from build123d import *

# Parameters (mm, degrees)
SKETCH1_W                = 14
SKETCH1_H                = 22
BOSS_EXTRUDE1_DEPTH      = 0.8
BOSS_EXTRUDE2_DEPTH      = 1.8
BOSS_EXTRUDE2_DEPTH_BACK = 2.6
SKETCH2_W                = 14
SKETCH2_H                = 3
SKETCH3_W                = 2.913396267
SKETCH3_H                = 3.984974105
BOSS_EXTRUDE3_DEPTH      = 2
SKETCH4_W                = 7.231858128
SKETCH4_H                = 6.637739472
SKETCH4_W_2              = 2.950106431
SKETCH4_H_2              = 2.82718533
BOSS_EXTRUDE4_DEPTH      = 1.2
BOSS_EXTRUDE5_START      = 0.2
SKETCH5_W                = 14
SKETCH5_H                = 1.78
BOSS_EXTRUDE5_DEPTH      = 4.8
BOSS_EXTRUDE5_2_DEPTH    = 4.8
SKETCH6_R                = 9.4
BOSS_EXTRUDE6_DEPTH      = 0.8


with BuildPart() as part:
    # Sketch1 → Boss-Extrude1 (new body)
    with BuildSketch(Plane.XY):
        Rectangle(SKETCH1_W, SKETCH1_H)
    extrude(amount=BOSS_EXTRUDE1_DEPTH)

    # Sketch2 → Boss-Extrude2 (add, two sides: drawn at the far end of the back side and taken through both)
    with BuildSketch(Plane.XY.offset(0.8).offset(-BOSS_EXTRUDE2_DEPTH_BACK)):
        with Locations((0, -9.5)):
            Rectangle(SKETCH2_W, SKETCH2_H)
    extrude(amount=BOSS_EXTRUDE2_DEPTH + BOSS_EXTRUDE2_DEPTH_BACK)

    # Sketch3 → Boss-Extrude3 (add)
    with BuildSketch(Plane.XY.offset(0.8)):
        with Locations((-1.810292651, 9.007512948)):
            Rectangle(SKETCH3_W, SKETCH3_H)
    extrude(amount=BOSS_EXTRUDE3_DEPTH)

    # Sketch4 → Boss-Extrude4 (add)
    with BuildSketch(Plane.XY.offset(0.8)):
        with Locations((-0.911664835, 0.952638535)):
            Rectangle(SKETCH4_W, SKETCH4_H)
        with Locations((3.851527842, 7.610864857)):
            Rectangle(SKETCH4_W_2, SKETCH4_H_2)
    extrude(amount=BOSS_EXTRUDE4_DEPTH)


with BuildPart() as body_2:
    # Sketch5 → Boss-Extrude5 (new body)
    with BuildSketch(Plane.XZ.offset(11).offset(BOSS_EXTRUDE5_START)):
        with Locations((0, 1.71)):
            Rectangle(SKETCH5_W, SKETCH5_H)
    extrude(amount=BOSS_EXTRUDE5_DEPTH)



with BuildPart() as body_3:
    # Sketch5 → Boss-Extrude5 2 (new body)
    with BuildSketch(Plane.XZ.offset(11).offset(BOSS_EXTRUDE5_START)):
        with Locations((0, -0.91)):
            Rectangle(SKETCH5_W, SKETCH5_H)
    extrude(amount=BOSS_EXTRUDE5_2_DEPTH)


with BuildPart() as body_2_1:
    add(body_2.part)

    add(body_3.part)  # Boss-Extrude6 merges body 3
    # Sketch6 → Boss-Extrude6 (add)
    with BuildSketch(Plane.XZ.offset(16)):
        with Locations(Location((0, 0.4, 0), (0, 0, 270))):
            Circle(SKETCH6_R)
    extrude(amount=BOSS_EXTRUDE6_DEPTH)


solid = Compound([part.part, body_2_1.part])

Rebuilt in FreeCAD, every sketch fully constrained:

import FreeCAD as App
import Part
import Sketcher

V = App.Vector

doc = App.newDocument("Part")
body = doc.addObject("PartDesign::Body", "Body")

sketch1 = body.newObject("Sketcher::SketchObject", "Sketch")
sketch1.AttachmentSupport = (doc.getObject("XY_Plane"), [""])
sketch1.MapMode = "FlatFace"
sketch1.addGeometry([
    Part.LineSegment(V(-7, 11, 0), V(-7, -11, 0)),
    Part.LineSegment(V(-7, -11, 0), V(7, -11, 0)),
    Part.LineSegment(V(7, -11, 0), V(7, 11, 0)),
    Part.LineSegment(V(7, 11, 0), V(-7, 11, 0)),
], False)
sketch1.addConstraint([
    Sketcher.Constraint("Coincident", 0, 2, 1, 1),
    Sketcher.Constraint("Coincident", 1, 2, 2, 1),
    Sketcher.Constraint("Coincident", 2, 2, 3, 1),
    Sketcher.Constraint("Coincident", 3, 2, 0, 1),
    Sketcher.Constraint("Vertical", 0),
    Sketcher.Constraint("Horizontal", 1),
    Sketcher.Constraint("Vertical", 2),
    Sketcher.Constraint("Horizontal", 3),
    Sketcher.Constraint("Symmetric", 0, 2, 2, 2, -1, 1),
    Sketcher.Constraint("DistanceX", 1, 1, 1, 2, 14.0),
    Sketcher.Constraint("DistanceY", 0, 2, 0, 1, 22.0),
])
pad1 = body.newObject("PartDesign::Pad", "Pad")
pad1.Profile = sketch1
pad1.Length = 0.8

sketch2 = body.newObject("Sketcher::SketchObject", "Sketch001")
sketch2.AttachmentSupport = (doc.getObject("XY_Plane"), [""])
sketch2.MapMode = "FlatFace"
sketch2.AttachmentOffset = App.Placement(V(0, 0, 0.8), App.Rotation())
sketch2.addGeometry([
    Part.LineSegment(V(-7, -8, 0), V(-7, -11, 0)),
    Part.LineSegment(V(-7, -11, 0), V(7, -11, 0)),
    Part.LineSegment(V(7, -11, 0), V(7, -8, 0)),
    Part.LineSegment(V(7, -8, 0), V(-7, -8, 0)),
], False)
sketch2.addConstraint([
    Sketcher.Constraint("Coincident", 0, 2, 1, 1),
    Sketcher.Constraint("Coincident", 1, 2, 2, 1),
    Sketcher.Constraint("Coincident", 2, 2, 3, 1),
    Sketcher.Constraint("Coincident", 3, 2, 0, 1),
    Sketcher.Constraint("Vertical", 0),
    Sketcher.Constraint("Horizontal", 1),
    Sketcher.Constraint("Vertical", 2),
    Sketcher.Constraint("Horizontal", 3),
    Sketcher.Constraint("DistanceX", 1, 1, 1, 2, 14.0),
    Sketcher.Constraint("DistanceY", 0, 2, 0, 1, 3.0),
    Sketcher.Constraint("DistanceX", 0, 2, -1, 1, 7.0),
    Sketcher.Constraint("DistanceY", 0, 2, -1, 1, 11.0),
])
pad2 = body.newObject("PartDesign::Pad", "Pad001")
pad2.Profile = sketch2
pad2.Type = "TwoLengths"
pad2.Length = 1.8
pad2.Length2 = 2.6

sketch3 = body.newObject("Sketcher::SketchObject", "Sketch002")
sketch3.AttachmentSupport = (doc.getObject("XY_Plane"), [""])
sketch3.MapMode = "FlatFace"
sketch3.AttachmentOffset = App.Placement(V(0, 0, 0.8), App.Rotation())
sketch3.addGeometry([
    Part.LineSegment(V(-3.3, 11, 0), V(-3.3, 7, 0)),
    Part.LineSegment(V(-3.3, 7, 0), V(-0.4, 7, 0)),
    Part.LineSegment(V(-0.4, 7, 0), V(-0.4, 11, 0)),
    Part.LineSegment(V(-0.4, 11, 0), V(-3.3, 11, 0)),
], False)
sketch3.addConstraint([
    Sketcher.Constraint("Coincident", 0, 2, 1, 1),
    Sketcher.Constraint("Coincident", 1, 2, 2, 1),
    Sketcher.Constraint("Coincident", 2, 2, 3, 1),
    Sketcher.Constraint("Coincident", 3, 2, 0, 1),
    Sketcher.Constraint("Vertical", 0),
    Sketcher.Constraint("Horizontal", 1),
    Sketcher.Constraint("Vertical", 2),
    Sketcher.Constraint("Horizontal", 3),
    Sketcher.Constraint("DistanceY", -1, 1, 2, 2, 11.0),
    Sketcher.Constraint("DistanceX", 1, 1, 1, 2, 2.913396),
    Sketcher.Constraint("DistanceY", 0, 2, 0, 1, 3.984974),
    Sketcher.Constraint("DistanceX", 0, 2, -1, 1, 3.266991),
])
pad3 = body.newObject("PartDesign::Pad", "Pad002")
pad3.Profile = sketch3
pad3.Length = 2

sketch4 = body.newObject("Sketcher::SketchObject", "Sketch003")
sketch4.AttachmentSupport = (doc.getObject("XY_Plane"), [""])
sketch4.MapMode = "FlatFace"
sketch4.AttachmentOffset = App.Placement(V(0, 0, 0.8), App.Rotation())
sketch4.addGeometry([
    Part.LineSegment(V(-4.5, 4.3, 0), V(-4.5, -2.4, 0)),
    Part.LineSegment(V(-4.5, -2.4, 0), V(2.7, -2.4, 0)),
    Part.LineSegment(V(2.7, -2.4, 0), V(2.7, 4.3, 0)),
    Part.LineSegment(V(2.7, 4.3, 0), V(-4.5, 4.3, 0)),
    Part.LineSegment(V(2.4, 9, 0), V(2.4, 6.2, 0)),
    Part.LineSegment(V(2.4, 6.2, 0), V(5.3, 6.2, 0)),
    Part.LineSegment(V(5.3, 6.2, 0), V(5.3, 9, 0)),
    Part.LineSegment(V(5.3, 9, 0), V(2.4, 9, 0)),
], False)
sketch4.addConstraint([
    Sketcher.Constraint("Coincident", 0, 2, 1, 1),
    Sketcher.Constraint("Coincident", 1, 2, 2, 1),
    Sketcher.Constraint("Coincident", 2, 2, 3, 1),
    Sketcher.Constraint("Coincident", 3, 2, 0, 1),
    Sketcher.Constraint("Coincident", 4, 2, 5, 1),
    Sketcher.Constraint("Coincident", 5, 2, 6, 1),
    Sketcher.Constraint("Coincident", 6, 2, 7, 1),
    Sketcher.Constraint("Coincident", 7, 2, 4, 1),
    Sketcher.Constraint("Vertical", 0),
    Sketcher.Constraint("Horizontal", 1),
    Sketcher.Constraint("Vertical", 2),
    Sketcher.Constraint("Horizontal", 3),
    Sketcher.Constraint("Vertical", 4),
    Sketcher.Constraint("Horizontal", 5),
    Sketcher.Constraint("Vertical", 6),
    Sketcher.Constraint("Horizontal", 7),
    Sketcher.Constraint("DistanceX", 1, 1, 1, 2, 7.231858),
    Sketcher.Constraint("DistanceY", 0, 2, 0, 1, 6.637739),
    Sketcher.Constraint("DistanceX", 5, 1, 5, 2, 2.950106),
    Sketcher.Constraint("DistanceY", 4, 2, 4, 1, 2.827185),
    Sketcher.Constraint("DistanceY", 0, 2, -1, 1, 2.366231),
    Sketcher.Constraint("DistanceX", -1, 1, 5, 2, 5.326581),
    Sketcher.Constraint("DistanceX", 4, 2, 2, 2, 0.32779),
    Sketcher.Constraint("DistanceY", 2, 2, 6, 2, 4.752949),
])
pad4 = body.newObject("PartDesign::Pad", "Pad003")
pad4.Profile = sketch4
pad4.Length = 1.2
body2 = doc.addObject("PartDesign::Body", "Body001")

sketch5 = body2.newObject("Sketcher::SketchObject", "Sketch004")
sketch5.AttachmentSupport = (doc.getObject("XZ_Plane001"), [""])
sketch5.MapMode = "FlatFace"
sketch5.AttachmentOffset = App.Placement(V(0, 0, 11.2), App.Rotation())
sketch5.addGeometry([
    Part.LineSegment(V(-7, 2.6, 0), V(-7, 0.8, 0)),
    Part.LineSegment(V(-7, 0.8, 0), V(7, 0.8, 0)),
    Part.LineSegment(V(7, 0.8, 0), V(7, 2.6, 0)),
    Part.LineSegment(V(7, 2.6, 0), V(-7, 2.6, 0)),
], False)
sketch5.addConstraint([
    Sketcher.Constraint("Coincident", 0, 2, 1, 1),
    Sketcher.Constraint("Coincident", 1, 2, 2, 1),
    Sketcher.Constraint("Coincident", 2, 2, 3, 1),
    Sketcher.Constraint("Coincident", 3, 2, 0, 1),
    Sketcher.Constraint("Vertical", 0),
    Sketcher.Constraint("Horizontal", 1),
    Sketcher.Constraint("Vertical", 2),
    Sketcher.Constraint("Horizontal", 3),
    Sketcher.Constraint("DistanceX", 1, 1, 1, 2, 14.0),
    Sketcher.Constraint("DistanceX", 0, 2, -1, 1, 7.0),
    Sketcher.Constraint("DistanceY", 0, 2, 0, 1, 1.78),
    Sketcher.Constraint("DistanceY", -1, 1, 2, 2, 2.6),
])
pad5 = body2.newObject("PartDesign::Pad", "Pad004")
pad5.Profile = sketch5
pad5.Length = 4.8
body3 = doc.addObject("PartDesign::Body", "Body002")

sketch6 = body3.newObject("Sketcher::SketchObject", "Sketch005")
sketch6.AttachmentSupport = (doc.getObject("XZ_Plane002"), [""])
sketch6.MapMode = "FlatFace"
sketch6.AttachmentOffset = App.Placement(V(0, 0, 11.2), App.Rotation())
sketch6.addGeometry([
    Part.LineSegment(V(-7, 0, 0), V(-7, -1.8, 0)),
    Part.LineSegment(V(-7, -1.8, 0), V(7, -1.8, 0)),
    Part.LineSegment(V(7, -1.8, 0), V(7, 0, 0)),
    Part.LineSegment(V(7, 0, 0), V(-7, 0, 0)),
], False)
sketch6.addConstraint([
    Sketcher.Constraint("Coincident", 0, 2, 1, 1),
    Sketcher.Constraint("Coincident", 1, 2, 2, 1),
    Sketcher.Constraint("Coincident", 2, 2, 3, 1),
    Sketcher.Constraint("Coincident", 3, 2, 0, 1),
    Sketcher.Constraint("Vertical", 0),
    Sketcher.Constraint("Horizontal", 1),
    Sketcher.Constraint("Vertical", 2),
    Sketcher.Constraint("Horizontal", 3),
    Sketcher.Constraint("DistanceX", 1, 1, 1, 2, 14.0),
    Sketcher.Constraint("DistanceX", 0, 2, -1, 1, 7.0),
    Sketcher.Constraint("DistanceY", 0, 2, 0, 1, 1.78),
    Sketcher.Constraint("DistanceY", 0, 2, -1, 1, 1.8),
])
pad6 = body3.newObject("PartDesign::Pad", "Pad005")
pad6.Profile = sketch6
pad6.Length = 4.8
body2.AllowCompound = True
doc.recompute()

boolean = body2.newObject("PartDesign::Boolean", "Boolean")
boolean.Type = "Fuse"
boolean.addObjects([body3])

sketch7 = body2.newObject("Sketcher::SketchObject", "Sketch006")
sketch7.AttachmentSupport = (doc.getObject("XZ_Plane001"), [""])
sketch7.MapMode = "FlatFace"
sketch7.AttachmentOffset = App.Placement(V(0, 0, 16), App.Rotation())
sketch7.addGeometry(Part.Circle(V(0, 0, 0), V(0, 0, 1), 9), False)
sketch7.addConstraint([
    Sketcher.Constraint("PointOnObject", 0, 3, -2),
    Sketcher.Constraint("Diameter", 0, 18.8),
    Sketcher.Constraint("DistanceY", -1, 1, 0, 3, 0.4),
])
pad7 = body2.newObject("PartDesign::Pad", "Pad006")
pad7.Profile = sketch7
pad7.Length = 0.8

doc.recompute()
